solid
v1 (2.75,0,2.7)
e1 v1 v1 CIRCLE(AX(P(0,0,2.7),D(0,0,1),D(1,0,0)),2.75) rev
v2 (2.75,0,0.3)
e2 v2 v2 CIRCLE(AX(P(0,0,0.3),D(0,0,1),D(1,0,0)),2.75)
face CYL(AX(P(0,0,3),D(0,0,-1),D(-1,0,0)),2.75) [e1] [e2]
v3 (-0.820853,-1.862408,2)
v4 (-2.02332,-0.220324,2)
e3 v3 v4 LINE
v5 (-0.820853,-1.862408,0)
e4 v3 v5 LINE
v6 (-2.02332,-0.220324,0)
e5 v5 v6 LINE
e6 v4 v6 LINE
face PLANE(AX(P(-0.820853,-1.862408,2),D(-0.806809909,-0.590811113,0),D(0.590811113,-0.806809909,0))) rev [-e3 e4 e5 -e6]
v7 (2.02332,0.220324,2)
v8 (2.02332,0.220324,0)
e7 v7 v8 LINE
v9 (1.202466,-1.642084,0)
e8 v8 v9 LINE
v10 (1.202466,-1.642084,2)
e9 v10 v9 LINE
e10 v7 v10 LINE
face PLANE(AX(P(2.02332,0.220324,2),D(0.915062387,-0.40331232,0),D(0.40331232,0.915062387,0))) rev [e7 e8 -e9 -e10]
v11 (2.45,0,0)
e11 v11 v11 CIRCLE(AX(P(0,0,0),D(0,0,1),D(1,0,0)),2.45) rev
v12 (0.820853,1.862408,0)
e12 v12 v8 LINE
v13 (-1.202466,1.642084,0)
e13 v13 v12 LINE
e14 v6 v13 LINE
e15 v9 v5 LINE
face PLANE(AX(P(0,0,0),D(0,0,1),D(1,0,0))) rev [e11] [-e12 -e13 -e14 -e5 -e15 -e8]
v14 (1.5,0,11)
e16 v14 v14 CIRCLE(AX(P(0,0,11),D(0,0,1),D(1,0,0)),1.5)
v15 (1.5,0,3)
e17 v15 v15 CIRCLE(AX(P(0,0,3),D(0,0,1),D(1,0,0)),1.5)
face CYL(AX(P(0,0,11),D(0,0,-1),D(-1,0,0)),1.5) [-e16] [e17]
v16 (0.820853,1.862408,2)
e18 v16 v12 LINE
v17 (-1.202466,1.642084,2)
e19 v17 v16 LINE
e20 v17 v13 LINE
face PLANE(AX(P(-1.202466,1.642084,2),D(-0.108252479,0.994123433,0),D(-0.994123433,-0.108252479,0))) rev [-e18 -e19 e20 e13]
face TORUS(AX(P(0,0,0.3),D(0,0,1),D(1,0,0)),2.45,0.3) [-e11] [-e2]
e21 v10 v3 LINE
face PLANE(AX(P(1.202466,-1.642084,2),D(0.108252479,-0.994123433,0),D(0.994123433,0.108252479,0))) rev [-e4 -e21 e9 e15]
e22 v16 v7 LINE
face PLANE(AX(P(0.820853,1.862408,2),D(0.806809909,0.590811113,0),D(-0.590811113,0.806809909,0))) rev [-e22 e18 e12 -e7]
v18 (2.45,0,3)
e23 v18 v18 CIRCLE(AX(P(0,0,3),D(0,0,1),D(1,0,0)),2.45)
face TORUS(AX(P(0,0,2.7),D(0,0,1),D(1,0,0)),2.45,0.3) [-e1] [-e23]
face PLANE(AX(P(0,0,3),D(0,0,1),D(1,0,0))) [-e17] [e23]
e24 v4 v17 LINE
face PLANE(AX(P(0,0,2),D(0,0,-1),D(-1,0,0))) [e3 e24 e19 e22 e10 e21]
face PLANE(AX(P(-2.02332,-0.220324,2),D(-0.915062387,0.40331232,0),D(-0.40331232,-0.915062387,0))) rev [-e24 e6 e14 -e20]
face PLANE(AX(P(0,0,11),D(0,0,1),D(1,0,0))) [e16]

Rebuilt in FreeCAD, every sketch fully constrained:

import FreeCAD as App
import Part
import Sketcher
from FreeCAD import Vector
Q = App.Units.Quantity


def edges_at(feature, points):
    """Names of the edges that pass closest to the given points."""
    edges = feature.Shape.Edges
    near = lambda p: min(range(len(edges)), key=lambda i: edges[i].distToShape(Part.Vertex(*p))[0])
    return sorted({f"Edge{near(p) + 1}" for p in points})


def add_polygon(sketch, points):
    """Adds a closed chain of lines whose ends are joined by coincident constraints."""
    first, n = sketch.GeometryCount, len(points)
    for a, b in zip(points, points[1:] + points[:1]):
        sketch.addGeometry(Part.LineSegment(App.Vector(*a, 0), App.Vector(*b, 0)), False)
    for i in range(n):
        sketch.addConstraint(Sketcher.Constraint("Coincident", first + i, 2, first + (i + 1) % n, 1))

doc = App.newDocument("Part")
body = doc.addObject("PartDesign::Body", "Body")

sketch1 = body.newObject("Sketcher::SketchObject", "Sketch")
sketch1.AttachmentSupport = (doc.getObject("XY_Plane"), [""])
sketch1.MapMode = "FlatFace"
sketch1.addGeometry(Part.Circle(Vector(0, 0, 0), Vector(0, 0, 1), 2.8), False)
sketch1.addConstraint([
    Sketcher.Constraint("Coincident", 0, 3, -1, 1),
    Sketcher.Constraint("Diameter", 0, Q("5.5 mm")),
])
pad1 = body.newObject("PartDesign::Pad", "Pad")
pad1.Profile = sketch1
pad1.Length = 3

sketch2 = body.newObject("Sketcher::SketchObject", "Sketch001")
sketch2.AttachmentSupport = (doc.getObject("XY_Plane"), [""])
sketch2.MapMode = "FlatFace"
sketch2.AttachmentOffset = App.Placement(Vector(0, 0, 3), App.Rotation())
sketch2.addGeometry(Part.Circle(Vector(0, 0, 0), Vector(0, 0, 1), 1.5), False)
sketch2.addConstraint([
    Sketcher.Constraint("Coincident", 0, 3, -1, 1),
    Sketcher.Constraint("Diameter", 0, Q("3 mm")),
])
pad2 = body.newObject("PartDesign::Pad", "Pad001")
pad2.Profile = sketch2
pad2.Length = 8
doc.recompute()

fillet = body.newObject("PartDesign::Fillet", "Fillet")
fillet.Base = (pad2, edges_at(pad2, [(-2.75, 0, 0), (-2.75, 0, 3)]))
fillet.Radius = 0.3

sketch3 = body.newObject("Sketcher::SketchObject", "Sketch002")
sketch3.AttachmentSupport = (doc.getObject("XY_Plane"), [""])
sketch3.MapMode = "FlatFace"
add_polygon(sketch3, [(0.8, 1.9), (2, 0.2), (1.2, -1.6), (-0.8, -1.9), (-2, -0.2), (-1.2, 1.6)])
sketch3.addConstraint([
    Sketcher.Constraint("Symmetric", 0, 2, 3, 2, -1, 1),
    Sketcher.Constraint("Symmetric", 1, 2, 4, 2, -1, 1),
    Sketcher.Constraint("Symmetric", 2, 2, 5, 2, -1, 1),
    Sketcher.Constraint("Equal", 0, 1),
    Sketcher.Constraint("Equal", 1, 2),
    Sketcher.Constraint("Distance", 0, Q("2.03528 mm")),
    Sketcher.Constraint("DistanceX", -1, 1, 0, 2, Q("2.02332 mm")),
    Sketcher.Constraint("DistanceY", 2, 2, -1, 1, Q("1.862408 mm")),
    Sketcher.Constraint("DistanceY", 1, 2, 0, 2, Q("1.862408 mm")),
])
pocket1 = body.newObject("PartDesign::Pocket", "Pocket")
pocket1.Profile = sketch3
pocket1.Length = 2
pocket1.Reversed = True

doc.recompute()
